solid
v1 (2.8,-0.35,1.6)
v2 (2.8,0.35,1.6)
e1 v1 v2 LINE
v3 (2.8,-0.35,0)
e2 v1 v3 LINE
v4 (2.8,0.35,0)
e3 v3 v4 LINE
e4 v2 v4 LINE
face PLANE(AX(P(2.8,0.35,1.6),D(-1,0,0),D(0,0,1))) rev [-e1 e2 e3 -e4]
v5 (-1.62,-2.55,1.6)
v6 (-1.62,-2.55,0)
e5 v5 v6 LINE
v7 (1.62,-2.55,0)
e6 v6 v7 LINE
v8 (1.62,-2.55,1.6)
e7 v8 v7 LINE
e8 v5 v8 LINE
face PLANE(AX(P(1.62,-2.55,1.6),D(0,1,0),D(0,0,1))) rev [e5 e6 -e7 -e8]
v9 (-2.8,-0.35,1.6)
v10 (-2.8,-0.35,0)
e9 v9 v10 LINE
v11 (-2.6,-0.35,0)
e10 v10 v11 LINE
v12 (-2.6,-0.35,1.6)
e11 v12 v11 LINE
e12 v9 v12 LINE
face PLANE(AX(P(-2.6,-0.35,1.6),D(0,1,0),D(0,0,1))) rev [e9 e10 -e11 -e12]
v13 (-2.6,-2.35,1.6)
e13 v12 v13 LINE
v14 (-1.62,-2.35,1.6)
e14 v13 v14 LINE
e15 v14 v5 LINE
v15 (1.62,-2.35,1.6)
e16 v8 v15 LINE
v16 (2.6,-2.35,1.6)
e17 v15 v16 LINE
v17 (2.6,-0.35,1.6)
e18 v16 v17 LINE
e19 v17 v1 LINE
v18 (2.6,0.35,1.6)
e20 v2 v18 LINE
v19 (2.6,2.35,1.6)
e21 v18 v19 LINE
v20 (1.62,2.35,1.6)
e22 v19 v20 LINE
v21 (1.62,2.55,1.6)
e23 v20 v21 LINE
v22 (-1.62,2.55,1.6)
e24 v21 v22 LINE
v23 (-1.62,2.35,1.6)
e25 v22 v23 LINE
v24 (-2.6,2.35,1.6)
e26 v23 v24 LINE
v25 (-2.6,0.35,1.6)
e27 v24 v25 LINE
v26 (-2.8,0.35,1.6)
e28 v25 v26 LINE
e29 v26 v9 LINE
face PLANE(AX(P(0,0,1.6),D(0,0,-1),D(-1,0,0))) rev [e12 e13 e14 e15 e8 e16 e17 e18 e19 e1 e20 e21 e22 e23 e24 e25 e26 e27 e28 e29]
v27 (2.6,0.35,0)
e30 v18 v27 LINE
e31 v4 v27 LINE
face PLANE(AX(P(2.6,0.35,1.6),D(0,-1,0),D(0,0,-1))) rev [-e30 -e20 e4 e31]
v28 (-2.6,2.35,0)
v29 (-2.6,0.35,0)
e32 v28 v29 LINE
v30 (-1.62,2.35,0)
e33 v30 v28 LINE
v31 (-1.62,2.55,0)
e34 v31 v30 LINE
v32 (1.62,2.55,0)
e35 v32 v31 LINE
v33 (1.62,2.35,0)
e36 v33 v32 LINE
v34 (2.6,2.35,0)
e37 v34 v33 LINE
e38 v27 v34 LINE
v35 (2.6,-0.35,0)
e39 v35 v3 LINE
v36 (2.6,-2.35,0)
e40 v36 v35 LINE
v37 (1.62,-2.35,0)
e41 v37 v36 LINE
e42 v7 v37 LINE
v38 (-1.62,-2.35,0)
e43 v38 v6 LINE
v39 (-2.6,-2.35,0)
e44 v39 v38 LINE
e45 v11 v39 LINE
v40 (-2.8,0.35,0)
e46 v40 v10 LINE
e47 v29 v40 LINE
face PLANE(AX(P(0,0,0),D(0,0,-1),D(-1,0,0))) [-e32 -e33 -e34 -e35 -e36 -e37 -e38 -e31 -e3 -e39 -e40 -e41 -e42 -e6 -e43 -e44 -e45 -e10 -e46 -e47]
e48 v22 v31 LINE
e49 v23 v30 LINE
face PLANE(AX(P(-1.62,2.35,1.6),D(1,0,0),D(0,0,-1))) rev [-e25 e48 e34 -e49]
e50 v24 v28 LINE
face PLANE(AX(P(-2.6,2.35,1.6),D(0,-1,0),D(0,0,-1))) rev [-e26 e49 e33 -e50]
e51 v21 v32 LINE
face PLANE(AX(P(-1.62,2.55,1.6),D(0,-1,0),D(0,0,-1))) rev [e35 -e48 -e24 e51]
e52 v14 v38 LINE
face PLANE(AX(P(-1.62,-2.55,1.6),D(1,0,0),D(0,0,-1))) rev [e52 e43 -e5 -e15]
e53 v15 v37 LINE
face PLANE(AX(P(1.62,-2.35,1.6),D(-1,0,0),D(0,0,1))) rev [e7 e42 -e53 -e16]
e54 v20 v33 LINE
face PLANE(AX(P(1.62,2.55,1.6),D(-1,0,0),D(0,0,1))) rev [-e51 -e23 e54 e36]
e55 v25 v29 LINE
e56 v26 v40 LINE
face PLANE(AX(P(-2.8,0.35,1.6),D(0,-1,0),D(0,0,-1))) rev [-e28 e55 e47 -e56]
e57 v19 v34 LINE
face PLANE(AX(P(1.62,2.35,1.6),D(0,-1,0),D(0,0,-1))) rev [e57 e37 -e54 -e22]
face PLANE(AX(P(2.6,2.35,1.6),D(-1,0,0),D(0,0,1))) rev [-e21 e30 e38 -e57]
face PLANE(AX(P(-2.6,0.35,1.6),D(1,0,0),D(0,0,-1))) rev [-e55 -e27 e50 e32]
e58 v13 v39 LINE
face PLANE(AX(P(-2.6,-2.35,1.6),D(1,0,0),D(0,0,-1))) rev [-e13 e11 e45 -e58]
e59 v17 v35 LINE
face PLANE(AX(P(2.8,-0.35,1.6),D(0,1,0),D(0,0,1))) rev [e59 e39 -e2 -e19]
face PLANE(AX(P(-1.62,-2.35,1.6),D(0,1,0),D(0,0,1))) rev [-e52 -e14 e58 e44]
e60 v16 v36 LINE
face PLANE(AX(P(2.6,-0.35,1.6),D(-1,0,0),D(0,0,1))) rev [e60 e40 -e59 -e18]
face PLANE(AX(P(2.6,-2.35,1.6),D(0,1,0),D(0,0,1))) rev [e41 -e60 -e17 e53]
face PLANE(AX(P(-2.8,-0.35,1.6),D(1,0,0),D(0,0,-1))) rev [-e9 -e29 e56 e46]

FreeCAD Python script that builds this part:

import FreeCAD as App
import Part
import Sketcher

V = App.Vector


def add_polygon(sketch, points):
    """Adds a closed chain of lines whose ends are joined by coincident constraints."""
    first, n = sketch.GeometryCount, len(points)
    for a, b in zip(points, points[1:] + points[:1]):
        sketch.addGeometry(Part.LineSegment(App.Vector(*a, 0), App.Vector(*b, 0)), False)
    for i in range(n):
        sketch.addConstraint(Sketcher.Constraint("Coincident", first + i, 2, first + (i + 1) % n, 1))

doc = App.newDocument("Part")
body = doc.addObject("PartDesign::Body", "Body")

sketch1 = body.newObject("Sketcher::SketchObject", "Sketch")
sketch1.AttachmentSupport = (doc.getObject("XY_Plane"), [""])
sketch1.MapMode = "FlatFace"
add_polygon(sketch1, [(-1.62, -2.35), (-1.62, -2.55), (1.62, -2.55), (1.62, -2.35), (2.6, -2.35), (2.6, -0.35), (2.8, -0.35), (2.8, 0.35), (2.6, 0.35), (2.6, 2.35), (1.62, 2.35), (1.62, 2.55), (-1.62, 2.55), (-1.62, 2.35), (-2.6, 2.35), (-2.6, 0.35), (-2.8, 0.35), (-2.8, -0.35), (-2.6, -0.35), (-2.6, -2.35)])
sketch1.addConstraint([
    Sketcher.Constraint("Vertical", 0),
    Sketcher.Constraint("Horizontal", 1),
    Sketcher.Constraint("Vertical", 2),
    Sketcher.Constraint("Horizontal", 3),
    Sketcher.Constraint("Vertical", 4),
    Sketcher.Constraint("Horizontal", 5),
    Sketcher.Constraint("Vertical", 6),
    Sketcher.Constraint("Horizontal", 7),
    Sketcher.Constraint("Vertical", 8),
    Sketcher.Constraint("Horizontal", 9),
    Sketcher.Constraint("Vertical", 10),
    Sketcher.Constraint("Horizontal", 11),
    Sketcher.Constraint("Vertical", 12),
    Sketcher.Constraint("Horizontal", 13),
    Sketcher.Constraint("Vertical", 14),
    Sketcher.Constraint("Horizontal", 15),
    Sketcher.Constraint("Vertical", 16),
    Sketcher.Constraint("Horizontal", 17),
    Sketcher.Constraint("Vertical", 18),
    Sketcher.Constraint("Horizontal", 19),
    Sketcher.Constraint("Symmetric", 0, 2, 10, 2, -1, 1),
    Sketcher.Constraint("Symmetric", 2, 2, 12, 2, -1, 1),
    Sketcher.Constraint("Symmetric", 4, 2, 14, 2, -1, 1),
    Sketcher.Constraint("Symmetric", 6, 2, 16, 2, -1, 1),
    Sketcher.Constraint("Symmetric", 8, 2, 18, 2, -1, 1),
    Sketcher.Constraint("Symmetric", 9, 2, 12, 2, -2),
    Sketcher.Constraint("Symmetric", 7, 2, 14, 2, -2),
    Sketcher.Constraint("Equal", 17, 0),
    Sketcher.Constraint("DistanceY", 4, 1, 4, 2, 2.0),
    Sketcher.Constraint("DistanceX", 5, 1, 5, 2, 0.2),
    Sketcher.Constraint("DistanceY", 6, 1, 6, 2, 0.7),
    Sketcher.Constraint("DistanceX", 1, 1, 1, 2, 3.24),
    Sketcher.Constraint("DistanceX", 3, 1, 3, 2, 0.98),
])
pad1 = body.newObject("PartDesign::Pad", "Pad")
pad1.Profile = sketch1
pad1.Length = 1.6

doc.recompute()
